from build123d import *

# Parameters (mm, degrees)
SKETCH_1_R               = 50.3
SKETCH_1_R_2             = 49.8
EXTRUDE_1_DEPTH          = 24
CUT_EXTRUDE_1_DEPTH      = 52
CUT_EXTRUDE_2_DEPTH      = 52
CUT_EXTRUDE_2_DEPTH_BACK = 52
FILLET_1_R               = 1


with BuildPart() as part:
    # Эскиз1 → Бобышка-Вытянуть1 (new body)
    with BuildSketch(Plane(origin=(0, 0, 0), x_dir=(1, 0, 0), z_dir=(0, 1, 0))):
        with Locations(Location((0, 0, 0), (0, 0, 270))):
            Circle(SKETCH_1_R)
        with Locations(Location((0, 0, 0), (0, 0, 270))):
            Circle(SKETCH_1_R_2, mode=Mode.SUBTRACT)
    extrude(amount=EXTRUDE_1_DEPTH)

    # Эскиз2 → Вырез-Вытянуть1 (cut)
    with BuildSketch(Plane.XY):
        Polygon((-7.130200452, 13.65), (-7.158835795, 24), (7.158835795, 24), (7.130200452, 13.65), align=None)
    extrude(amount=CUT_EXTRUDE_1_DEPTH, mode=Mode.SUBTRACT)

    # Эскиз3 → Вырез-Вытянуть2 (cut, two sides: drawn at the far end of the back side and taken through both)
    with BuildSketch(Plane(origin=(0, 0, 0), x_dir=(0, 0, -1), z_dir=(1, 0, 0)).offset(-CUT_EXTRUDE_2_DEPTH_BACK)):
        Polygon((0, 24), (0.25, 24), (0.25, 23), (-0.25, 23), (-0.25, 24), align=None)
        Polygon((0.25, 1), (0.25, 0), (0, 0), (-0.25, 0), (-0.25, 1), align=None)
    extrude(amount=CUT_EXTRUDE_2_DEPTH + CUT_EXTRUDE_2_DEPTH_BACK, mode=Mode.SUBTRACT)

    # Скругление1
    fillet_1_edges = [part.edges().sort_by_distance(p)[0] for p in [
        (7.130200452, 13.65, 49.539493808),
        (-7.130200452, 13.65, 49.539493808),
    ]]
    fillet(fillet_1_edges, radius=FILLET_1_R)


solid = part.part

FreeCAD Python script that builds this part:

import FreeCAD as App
import Part
import Sketcher
Q = App.Units.Quantity


def edges_at(feature, points):
    """Names of the edges that pass closest to the given points."""
    edges = feature.Shape.Edges
    near = lambda p: min(range(len(edges)), key=lambda i: edges[i].distToShape(Part.Vertex(*p))[0])
    return sorted({f"Edge{near(p) + 1}" for p in points})


def add_polygon(sketch, points):
    """Adds a closed chain of lines whose ends are joined by coincident constraints."""
    first, n = sketch.GeometryCount, len(points)
    for a, b in zip(points, points[1:] + points[:1]):
        sketch.addGeometry(Part.LineSegment(App.Vector(*a, 0), App.Vector(*b, 0)), False)
    for i in range(n):
        sketch.addConstraint(Sketcher.Constraint("Coincident", first + i, 2, first + (i + 1) % n, 1))

doc = App.newDocument("Part")
body = doc.addObject("PartDesign::Body", "Body")

# Sketch on XZ plane
sketch1 = body.newObject("Sketcher::SketchObject", "Sketch")
sketch1.AttachmentSupport = (doc.getObject("XZ_Plane"), [""])
sketch1.MapMode = "FlatFace"
sketch1.addGeometry([
    Part.Circle(App.Vector(0, 0, 0), App.Vector(0, 0, 1), 50.3),
    Part.Circle(App.Vector(0, 0, 0), App.Vector(0, 0, 1), 49.8),
], False)
sketch1.addConstraint([
    Sketcher.Constraint("Coincident", 0, 3, -1, 1),
    Sketcher.Constraint("Coincident", 1, 3, -1, 1),
    Sketcher.Constraint("Diameter", 0, Q("100.6 mm")),
    Sketcher.Constraint("Diameter", 1, Q("99.6 mm")),
])
pad1 = body.newObject("PartDesign::Pad", "Pad")
pad1.Profile = sketch1
pad1.Length = 24
pad1.Reversed = True

# Sketch on XY plane
sketch2 = body.newObject("Sketcher::SketchObject", "Sketch001")
sketch2.AttachmentSupport = (doc.getObject("XY_Plane"), [""])
sketch2.MapMode = "FlatFace"
add_polygon(sketch2, [(-7.158836, 24), (-7.1302, 13.65), (7.1302, 13.65), (7.158836, 24)])  # lines 0-3
sketch2.addConstraint([
    Sketcher.Constraint("Horizontal", 1),
    Sketcher.Constraint("Horizontal", 3),
    Sketcher.Constraint("DistanceY", -1, 1, 2, 2, Q("24 mm")),
    Sketcher.Constraint("DistanceY", -1, 1, 0, 2, Q("13.65 mm")),
    Sketcher.Constraint("DistanceX", 1, 1, 1, 2, Q("14.260401 mm")),
    Sketcher.Constraint("DistanceX", 3, 2, 3, 1, Q("14.317672 mm")),
    Sketcher.Constraint("DistanceX", 0, 2, -1, 1, Q("7.1302 mm")),
    Sketcher.Constraint("DistanceX", -1, 1, 2, 2, Q("7.158836 mm")),
])
pocket1 = body.newObject("PartDesign::Pocket", "Pocket")
pocket1.Profile = sketch2
pocket1.Length = 52
pocket1.Reversed = True

# Sketch on YZ plane
sketch3 = body.newObject("Sketcher::SketchObject", "Sketch002")
sketch3.AttachmentSupport = (doc.getObject("YZ_Plane"), [""])
sketch3.MapMode = "FlatFace"
add_polygon(sketch3, [(24, -0.25), (24, 0.25), (23, 0.25), (23, -0.25)])  # lines 0-3
add_polygon(sketch3, [(0, -0.25), (1, -0.25), (1, 0.25), (0, 0.25)])  # lines 4-7
sketch3.addConstraint([
    Sketcher.Constraint("Vertical", 0),
    Sketcher.Constraint("Horizontal", 1),
    Sketcher.Constraint("Vertical", 2),
    Sketcher.Constraint("Horizontal", 3),
    Sketcher.Constraint("Horizontal", 4),
    Sketcher.Constraint("Vertical", 5),
    Sketcher.Constraint("Horizontal", 6),
    Sketcher.Constraint("Vertical", 7),
    Sketcher.Constraint("Symmetric", 6, 2, 7, 2, -1, 1),
    Sketcher.Constraint("Horizontal", 3, 2, 4, 2),
    Sketcher.Constraint("Horizontal", 1, 2, 5, 2),
    Sketcher.Constraint("Equal", 3, 4),
    Sketcher.Constraint("DistanceX", 1, 2, 1, 1, Q("1 mm")),
    Sketcher.Constraint("DistanceY", 0, 1, 0, 2, Q("0.5 mm")),
    Sketcher.Constraint("DistanceX", -1, 1, 0, 2, Q("24 mm")),
])
pocket2 = body.newObject("PartDesign::Pocket", "Pocket001")
pocket2.Profile = sketch3
pocket2.Type = "ThroughAll"
pocket2.Midplane = True
doc.recompute()

fillet = body.newObject("PartDesign::Fillet", "Fillet")
fillet.Base = (pocket2, edges_at(pocket2, [(7.13, 13.65, 49.539), (-7.13, 13.65, 49.539)]))
fillet.Radius = 1

doc.recompute()
